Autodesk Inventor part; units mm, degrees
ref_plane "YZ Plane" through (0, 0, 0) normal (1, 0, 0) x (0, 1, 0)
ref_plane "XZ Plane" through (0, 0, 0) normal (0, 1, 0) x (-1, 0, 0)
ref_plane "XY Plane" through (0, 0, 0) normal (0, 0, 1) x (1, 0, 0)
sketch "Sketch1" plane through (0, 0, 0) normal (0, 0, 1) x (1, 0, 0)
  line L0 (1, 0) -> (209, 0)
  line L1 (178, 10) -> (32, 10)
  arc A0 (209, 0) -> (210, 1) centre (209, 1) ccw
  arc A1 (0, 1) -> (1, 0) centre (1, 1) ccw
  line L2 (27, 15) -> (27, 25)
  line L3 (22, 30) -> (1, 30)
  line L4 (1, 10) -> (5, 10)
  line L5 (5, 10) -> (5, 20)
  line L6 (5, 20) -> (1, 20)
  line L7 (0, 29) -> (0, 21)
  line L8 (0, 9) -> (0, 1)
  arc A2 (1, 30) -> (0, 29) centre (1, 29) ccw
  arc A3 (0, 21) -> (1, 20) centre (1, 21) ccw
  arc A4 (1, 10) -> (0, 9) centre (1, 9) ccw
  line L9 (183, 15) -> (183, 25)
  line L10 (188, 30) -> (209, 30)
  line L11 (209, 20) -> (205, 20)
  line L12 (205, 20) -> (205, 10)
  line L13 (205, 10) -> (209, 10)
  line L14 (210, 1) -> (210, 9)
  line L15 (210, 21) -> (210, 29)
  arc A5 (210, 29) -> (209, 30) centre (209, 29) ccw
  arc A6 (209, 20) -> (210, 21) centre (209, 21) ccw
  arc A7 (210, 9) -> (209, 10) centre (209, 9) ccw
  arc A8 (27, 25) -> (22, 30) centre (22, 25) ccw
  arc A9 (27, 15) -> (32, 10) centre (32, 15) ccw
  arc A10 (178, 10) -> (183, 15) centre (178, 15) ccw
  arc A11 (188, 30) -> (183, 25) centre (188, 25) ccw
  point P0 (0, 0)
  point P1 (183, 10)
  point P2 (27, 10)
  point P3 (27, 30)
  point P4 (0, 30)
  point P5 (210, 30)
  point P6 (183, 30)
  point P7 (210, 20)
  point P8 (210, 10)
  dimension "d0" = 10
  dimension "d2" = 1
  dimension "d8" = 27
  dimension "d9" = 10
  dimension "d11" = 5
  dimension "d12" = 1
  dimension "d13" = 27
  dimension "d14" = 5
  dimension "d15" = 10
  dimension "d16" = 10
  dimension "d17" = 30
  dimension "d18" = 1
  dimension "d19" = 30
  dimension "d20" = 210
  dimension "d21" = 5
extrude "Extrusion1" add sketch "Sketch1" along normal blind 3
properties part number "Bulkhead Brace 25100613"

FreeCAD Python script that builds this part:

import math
import FreeCAD as App
import Part
import Sketcher
from FreeCAD import Vector

doc = App.newDocument("Part")
params = doc.addObject("Spreadsheet::Sheet", "Params")
for row, (alias, value) in enumerate([
    ("sketch1_radius", "1 mm"),
    ("sketch1_radius2", "5 mm"),
    ("sketch1_height", "10 mm"),
    ("pad1_length", "3 mm"),
], start=1):
    params.set(f"A{row}", alias)
    params.set(f"B{row}", "=" + value)
    params.setAlias(f"B{row}", alias)

body = doc.addObject("PartDesign::Body", "Body")

# Sketch on XY plane
sketch1 = doc.addObject("Sketcher::SketchObject", "Sketch")
body.addObject(sketch1)
sketch1.AttachmentSupport = (doc.XY_Plane, [""])
sketch1.MapMode = "FlatFace"
sketch1.addGeometry([
    Part.ArcOfCircle(Part.Circle(Vector(1, 1, 0), Vector(0, 0, 1), 1), math.radians(180), math.radians(270)),  # 0
    Part.LineSegment(Vector(1, 0, 0), Vector(209, 0, 0)),  # 1
    Part.ArcOfCircle(Part.Circle(Vector(209, 1, 0), Vector(0, 0, 1), 1), math.radians(-90), math.radians(0)),  # 2
    Part.LineSegment(Vector(210, 1, 0), Vector(210, 9, 0)),  # 3
    Part.ArcOfCircle(Part.Circle(Vector(209, 9, 0), Vector(0, 0, 1), 1), math.radians(0), math.radians(90)),  # 4
    Part.LineSegment(Vector(209, 10, 0), Vector(205, 10, 0)),  # 5
    Part.LineSegment(Vector(205, 10, 0), Vector(205, 20, 0)),  # 6
    Part.LineSegment(Vector(205, 20, 0), Vector(209, 20, 0)),  # 7
    Part.ArcOfCircle(Part.Circle(Vector(209, 21, 0), Vector(0, 0, 1), 1), math.radians(-90), math.radians(0)),  # 8
    Part.LineSegment(Vector(210, 21, 0), Vector(210, 29, 0)),  # 9
    Part.ArcOfCircle(Part.Circle(Vector(209, 29, 0), Vector(0, 0, 1), 1), math.radians(0), math.radians(90)),  # 10
    Part.LineSegment(Vector(209, 30, 0), Vector(188, 30, 0)),  # 11
    Part.ArcOfCircle(Part.Circle(Vector(188, 25, 0), Vector(0, 0, 1), 5), math.radians(90), math.radians(180)),  # 12
    Part.LineSegment(Vector(183, 25, 0), Vector(183, 15, 0)),  # 13
    Part.ArcOfCircle(Part.Circle(Vector(178, 15, 0), Vector(0, 0, 1), 5), math.radians(-90), math.radians(0)),  # 14
    Part.LineSegment(Vector(178, 10, 0), Vector(32, 10, 0)),  # 15
    Part.ArcOfCircle(Part.Circle(Vector(32, 15, 0), Vector(0, 0, 1), 5), math.radians(180), math.radians(270)),  # 16
    Part.LineSegment(Vector(27, 15, 0), Vector(27, 25, 0)),  # 17
    Part.ArcOfCircle(Part.Circle(Vector(22, 25, 0), Vector(0, 0, 1), 5), math.radians(0), math.radians(90)),  # 18
    Part.LineSegment(Vector(22, 30, 0), Vector(1, 30, 0)),  # 19
    Part.ArcOfCircle(Part.Circle(Vector(1, 29, 0), Vector(0, 0, 1), 1), math.radians(90), math.radians(180)),  # 20
    Part.LineSegment(Vector(0, 29, 0), Vector(0, 21, 0)),  # 21
    Part.ArcOfCircle(Part.Circle(Vector(1, 21, 0), Vector(0, 0, 1), 1), math.radians(180), math.radians(270)),  # 22
    Part.LineSegment(Vector(1, 20, 0), Vector(5, 20, 0)),  # 23
    Part.LineSegment(Vector(5, 20, 0), Vector(5, 10, 0)),  # 24
    Part.LineSegment(Vector(5, 10, 0), Vector(1, 10, 0)),  # 25
    Part.ArcOfCircle(Part.Circle(Vector(1, 9, 0), Vector(0, 0, 1), 1), math.radians(90), math.radians(180)),  # 26
    Part.LineSegment(Vector(0, 9, 0), Vector(0, 1, 0)),  # 27
], False)
sketch1.addConstraint([
    Sketcher.Constraint("Tangent", 0, 2, 1, 1),
    Sketcher.Constraint("Tangent", 1, 2, 2, 1),
    Sketcher.Constraint("Tangent", 2, 2, 3, 1),
    Sketcher.Constraint("Tangent", 3, 2, 4, 1),
    Sketcher.Constraint("Tangent", 4, 2, 5, 1),
    Sketcher.Constraint("Coincident", 5, 2, 6, 1),
    Sketcher.Constraint("Coincident", 6, 2, 7, 1),
    Sketcher.Constraint("Tangent", 7, 2, 8, 1),
    Sketcher.Constraint("Tangent", 8, 2, 9, 1),
    Sketcher.Constraint("Tangent", 9, 2, 10, 1),
    Sketcher.Constraint("Tangent", 10, 2, 11, 1),
    Sketcher.Constraint("Tangent", 11, 2, 12, 1),
    Sketcher.Constraint("Tangent", 12, 2, 13, 1),
    Sketcher.Constraint("Tangent", 13, 2, 14, 2),
    Sketcher.Constraint("Tangent", 14, 1, 15, 1),
    Sketcher.Constraint("Tangent", 15, 2, 16, 2),
    Sketcher.Constraint("Tangent", 16, 1, 17, 1),
    Sketcher.Constraint("Tangent", 17, 2, 18, 1),
    Sketcher.Constraint("Tangent", 18, 2, 19, 1),
    Sketcher.Constraint("Tangent", 19, 2, 20, 1),
    Sketcher.Constraint("Tangent", 20, 2, 21, 1),
    Sketcher.Constraint("Tangent", 21, 2, 22, 1),
    Sketcher.Constraint("Tangent", 22, 2, 23, 1),
    Sketcher.Constraint("Coincident", 23, 2, 24, 1),
    Sketcher.Constraint("Coincident", 24, 2, 25, 1),
    Sketcher.Constraint("Tangent", 25, 2, 26, 1),
    Sketcher.Constraint("Tangent", 26, 2, 27, 1),
    Sketcher.Constraint("Tangent", 27, 2, 0, 1),
    Sketcher.Constraint("Horizontal", 1),
    Sketcher.Constraint("Vertical", 3),
    Sketcher.Constraint("Horizontal", 5),
    Sketcher.Constraint("Vertical", 6),
    Sketcher.Constraint("Horizontal", 7),
    Sketcher.Constraint("Vertical", 9),
    Sketcher.Constraint("Horizontal", 11),
    Sketcher.Constraint("Vertical", 13),
    Sketcher.Constraint("Horizontal", 15),
    Sketcher.Constraint("Vertical", 17),
    Sketcher.Constraint("Horizontal", 19),
    Sketcher.Constraint("Vertical", 21),
    Sketcher.Constraint("Horizontal", 23),
    Sketcher.Constraint("Vertical", 24),
    Sketcher.Constraint("Horizontal", 25),
    Sketcher.Constraint("Vertical", 27),
    Sketcher.Constraint("Equal", 0, 2),
    Sketcher.Constraint("Equal", 2, 4),
    Sketcher.Constraint("Equal", 4, 8),
    Sketcher.Constraint("Equal", 8, 10),
    Sketcher.Constraint("Equal", 12, 14),
    Sketcher.Constraint("Equal", 14, 16),
    Sketcher.Constraint("Equal", 16, 18),
    Sketcher.Constraint("Equal", 10, 20),
    Sketcher.Constraint("Equal", 20, 22),
    Sketcher.Constraint("Equal", 22, 26),
    Sketcher.Constraint("PointOnObject", 0, 2, -1),
    Sketcher.Constraint("PointOnObject", 20, 2, -2),
    Sketcher.Constraint("PointOnObject", 26, 2, -2),
    Sketcher.Constraint("Horizontal", 12, 3, 18, 3),
    Sketcher.Constraint("Horizontal", 8, 3, 22, 3),
    Sketcher.Constraint("Horizontal", 4, 3, 26, 3),
    Sketcher.Constraint("Horizontal", 5, 2, 14, 1),
    Sketcher.Constraint("Vertical", 4, 3, 8, 3),
    Sketcher.Constraint("Equal", 11, 19),
    Sketcher.Constraint("Equal", 7, 23),
    Sketcher.Constraint("Equal", 3, 9),
    Sketcher.Constraint("Equal", 6, 13),
    Sketcher.Constraint("Radius", 0, 1.0),
    Sketcher.Constraint("Radius", 12, 5.0),
    Sketcher.Constraint("DistanceY", 6, 1, 6, 2, 10.0),
    Sketcher.Constraint("DistanceX", -1, 1, 2, 2, 210.0),
    Sketcher.Constraint("DistanceX", -1, 1, 16, 1, 27.0),
    Sketcher.Constraint("DistanceX", -1, 1, 23, 2, 5.0),
])
sketch1.setExpression("Constraints[66]", "Params.sketch1_radius")
sketch1.setExpression("Constraints[67]", "Params.sketch1_radius2")
sketch1.setExpression("Constraints[68]", "Params.sketch1_height")
pad1 = doc.addObject("PartDesign::Pad", "Pad")
body.addObject(pad1)
pad1.Profile = sketch1
pad1.setExpression("Length", "Params.pad1_length")

doc.recompute()
